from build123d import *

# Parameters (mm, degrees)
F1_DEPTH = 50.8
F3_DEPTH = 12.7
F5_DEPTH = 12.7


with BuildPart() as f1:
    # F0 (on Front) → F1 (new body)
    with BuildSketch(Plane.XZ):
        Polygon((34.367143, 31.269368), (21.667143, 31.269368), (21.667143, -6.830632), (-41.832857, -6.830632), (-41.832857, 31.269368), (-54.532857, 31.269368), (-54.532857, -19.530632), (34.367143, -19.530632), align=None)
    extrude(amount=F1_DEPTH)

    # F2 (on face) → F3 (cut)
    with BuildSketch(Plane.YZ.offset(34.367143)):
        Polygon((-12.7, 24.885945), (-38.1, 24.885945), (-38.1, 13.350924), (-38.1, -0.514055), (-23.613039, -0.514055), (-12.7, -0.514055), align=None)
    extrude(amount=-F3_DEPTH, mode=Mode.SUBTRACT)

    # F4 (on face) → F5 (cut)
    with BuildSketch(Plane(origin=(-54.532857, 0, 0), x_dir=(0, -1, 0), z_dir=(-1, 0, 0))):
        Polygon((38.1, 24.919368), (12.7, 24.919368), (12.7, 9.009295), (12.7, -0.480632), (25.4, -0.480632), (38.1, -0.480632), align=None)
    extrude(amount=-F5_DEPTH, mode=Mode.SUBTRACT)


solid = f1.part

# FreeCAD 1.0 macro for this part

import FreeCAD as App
import Part
import Sketcher

V = App.Vector
Q = App.Units.Quantity

doc = App.newDocument("Part")
body = doc.addObject("PartDesign::Body", "Body")

# Sketch on XZ plane
sketch1 = body.newObject("Sketcher::SketchObject", "Sketch")
sketch1.AttachmentSupport = (doc.getObject("XZ_Plane"), [""])
sketch1.MapMode = "FlatFace"
sketch1.addGeometry([
    Part.LineSegment(V(34, 31, 0), V(22, 31, 0)),  # 0
    Part.LineSegment(V(22, 31, 0), V(22, -7, 0)),  # 1
    Part.LineSegment(V(22, -7, 0), V(-42, -7, 0)),  # 2
    Part.LineSegment(V(-42, -7, 0), V(-42, 31, 0)),  # 3
    Part.LineSegment(V(-42, 31, 0), V(-55, 31, 0)),  # 4
    Part.LineSegment(V(-55, 31, 0), V(-55, -20, 0)),  # 5
    Part.LineSegment(V(-55, -20, 0), V(34, -20, 0)),  # 6
    Part.LineSegment(V(34, -20, 0), V(34, 31, 0)),  # 7
], False)
sketch1.addConstraint([
    Sketcher.Constraint("Coincident", 0, 2, 1, 1),
    Sketcher.Constraint("Coincident", 1, 2, 2, 1),
    Sketcher.Constraint("Coincident", 2, 2, 3, 1),
    Sketcher.Constraint("Coincident", 3, 2, 4, 1),
    Sketcher.Constraint("Coincident", 4, 2, 5, 1),
    Sketcher.Constraint("Coincident", 5, 2, 6, 1),
    Sketcher.Constraint("Coincident", 6, 2, 7, 1),
    Sketcher.Constraint("Coincident", 7, 2, 0, 1),
    Sketcher.Constraint("Horizontal", 0),
    Sketcher.Constraint("Vertical", 1),
    Sketcher.Constraint("Horizontal", 2),
    Sketcher.Constraint("Vertical", 3),
    Sketcher.Constraint("Horizontal", 4),
    Sketcher.Constraint("Vertical", 5),
    Sketcher.Constraint("Horizontal", 6),
    Sketcher.Constraint("Vertical", 7),
    Sketcher.Constraint("Horizontal", 0, 2, 3, 2),
    Sketcher.Constraint("Equal", 0, 4),
    Sketcher.Constraint("DistanceY", 5, 2, 5, 1, Q("2 in")),
    Sketcher.Constraint("DistanceX", 0, 2, 0, 1, Q("0.5 in")),
    Sketcher.Constraint("DistanceX", 2, 2, 2, 1, Q("2.5 in")),
    Sketcher.Constraint("DistanceY", 1, 2, 1, 1, Q("1.5 in")),
    Sketcher.Constraint("DistanceY", -1, 1, 0, 2, 31.269368),
    Sketcher.Constraint("DistanceX", -1, 1, 0, 2, 21.667143),
])
pad1 = body.newObject("PartDesign::Pad", "Pad")
pad1.Profile = sketch1
pad1.Length = Q("2 in")

# Sketch on YZ plane
sketch2 = body.newObject("Sketcher::SketchObject", "Sketch001")
sketch2.AttachmentSupport = (doc.getObject("YZ_Plane"), [""])
sketch2.MapMode = "FlatFace"
sketch2.AttachmentOffset = App.Placement(V(0, 0, 34.367143), App.Rotation())
sketch2.addGeometry([
    Part.LineSegment(V(-13, 25, 0), V(-38, 25, 0)),
    Part.LineSegment(V(-38, 25, 0), V(-38, -1, 0)),
    Part.LineSegment(V(-38, -1, 0), V(-13, -1, 0)),
    Part.LineSegment(V(-13, -1, 0), V(-13, 25, 0)),
], False)
sketch2.addConstraint([
    Sketcher.Constraint("Coincident", 0, 2, 1, 1),
    Sketcher.Constraint("Coincident", 1, 2, 2, 1),
    Sketcher.Constraint("Coincident", 2, 2, 3, 1),
    Sketcher.Constraint("Coincident", 3, 2, 0, 1),
    Sketcher.Constraint("Horizontal", 0),
    Sketcher.Constraint("Vertical", 1),
    Sketcher.Constraint("Horizontal", 2),
    Sketcher.Constraint("Vertical", 3),
    Sketcher.Constraint("Equal", 2, 1),
    Sketcher.Constraint("DistanceX", 0, 2, 0, 1, Q("1 in")),
    Sketcher.Constraint("DistanceX", 0, 2, -1, 1, Q("1.5 in")),
    Sketcher.Constraint("DistanceY", -1, 1, 0, 2, 24.885945),
])
pocket1 = body.newObject("PartDesign::Pocket", "Pocket")
pocket1.Profile = sketch2
pocket1.Length = Q("0.5 in")

# Sketch on YZ plane
sketch3 = body.newObject("Sketcher::SketchObject", "Sketch002")
sketch3.AttachmentSupport = (doc.getObject("YZ_Plane"), [""])
sketch3.MapMode = "FlatFace"
sketch3.AttachmentOffset = App.Placement(V(0, 0, -54.532857), App.Rotation())
sketch3.addGeometry([
    Part.LineSegment(V(-38, 25, 0), V(-13, 25, 0)),
    Part.LineSegment(V(-13, 25, 0), V(-13, 0, 0)),
    Part.LineSegment(V(-13, 0, 0), V(-38, 0, 0)),
    Part.LineSegment(V(-38, 0, 0), V(-38, 25, 0)),
], False)
sketch3.addConstraint([
    Sketcher.Constraint("Coincident", 0, 2, 1, 1),
    Sketcher.Constraint("Coincident", 1, 2, 2, 1),
    Sketcher.Constraint("Coincident", 2, 2, 3, 1),
    Sketcher.Constraint("Coincident", 3, 2, 0, 1),
    Sketcher.Constraint("Horizontal", 0),
    Sketcher.Constraint("Vertical", 1),
    Sketcher.Constraint("Horizontal", 2),
    Sketcher.Constraint("Vertical", 3),
    Sketcher.Constraint("Equal", 2, 1),
    Sketcher.Constraint("DistanceX", 0, 1, 0, 2, Q("1 in")),
    Sketcher.Constraint("DistanceX", 0, 2, -1, 1, Q("0.5 in")),
    Sketcher.Constraint("DistanceY", -1, 1, 0, 2, 24.919368),
])
pocket2 = body.newObject("PartDesign::Pocket", "Pocket001")
pocket2.Profile = sketch3
pocket2.Length = Q("0.5 in")
pocket2.Reversed = True

doc.recompute()
